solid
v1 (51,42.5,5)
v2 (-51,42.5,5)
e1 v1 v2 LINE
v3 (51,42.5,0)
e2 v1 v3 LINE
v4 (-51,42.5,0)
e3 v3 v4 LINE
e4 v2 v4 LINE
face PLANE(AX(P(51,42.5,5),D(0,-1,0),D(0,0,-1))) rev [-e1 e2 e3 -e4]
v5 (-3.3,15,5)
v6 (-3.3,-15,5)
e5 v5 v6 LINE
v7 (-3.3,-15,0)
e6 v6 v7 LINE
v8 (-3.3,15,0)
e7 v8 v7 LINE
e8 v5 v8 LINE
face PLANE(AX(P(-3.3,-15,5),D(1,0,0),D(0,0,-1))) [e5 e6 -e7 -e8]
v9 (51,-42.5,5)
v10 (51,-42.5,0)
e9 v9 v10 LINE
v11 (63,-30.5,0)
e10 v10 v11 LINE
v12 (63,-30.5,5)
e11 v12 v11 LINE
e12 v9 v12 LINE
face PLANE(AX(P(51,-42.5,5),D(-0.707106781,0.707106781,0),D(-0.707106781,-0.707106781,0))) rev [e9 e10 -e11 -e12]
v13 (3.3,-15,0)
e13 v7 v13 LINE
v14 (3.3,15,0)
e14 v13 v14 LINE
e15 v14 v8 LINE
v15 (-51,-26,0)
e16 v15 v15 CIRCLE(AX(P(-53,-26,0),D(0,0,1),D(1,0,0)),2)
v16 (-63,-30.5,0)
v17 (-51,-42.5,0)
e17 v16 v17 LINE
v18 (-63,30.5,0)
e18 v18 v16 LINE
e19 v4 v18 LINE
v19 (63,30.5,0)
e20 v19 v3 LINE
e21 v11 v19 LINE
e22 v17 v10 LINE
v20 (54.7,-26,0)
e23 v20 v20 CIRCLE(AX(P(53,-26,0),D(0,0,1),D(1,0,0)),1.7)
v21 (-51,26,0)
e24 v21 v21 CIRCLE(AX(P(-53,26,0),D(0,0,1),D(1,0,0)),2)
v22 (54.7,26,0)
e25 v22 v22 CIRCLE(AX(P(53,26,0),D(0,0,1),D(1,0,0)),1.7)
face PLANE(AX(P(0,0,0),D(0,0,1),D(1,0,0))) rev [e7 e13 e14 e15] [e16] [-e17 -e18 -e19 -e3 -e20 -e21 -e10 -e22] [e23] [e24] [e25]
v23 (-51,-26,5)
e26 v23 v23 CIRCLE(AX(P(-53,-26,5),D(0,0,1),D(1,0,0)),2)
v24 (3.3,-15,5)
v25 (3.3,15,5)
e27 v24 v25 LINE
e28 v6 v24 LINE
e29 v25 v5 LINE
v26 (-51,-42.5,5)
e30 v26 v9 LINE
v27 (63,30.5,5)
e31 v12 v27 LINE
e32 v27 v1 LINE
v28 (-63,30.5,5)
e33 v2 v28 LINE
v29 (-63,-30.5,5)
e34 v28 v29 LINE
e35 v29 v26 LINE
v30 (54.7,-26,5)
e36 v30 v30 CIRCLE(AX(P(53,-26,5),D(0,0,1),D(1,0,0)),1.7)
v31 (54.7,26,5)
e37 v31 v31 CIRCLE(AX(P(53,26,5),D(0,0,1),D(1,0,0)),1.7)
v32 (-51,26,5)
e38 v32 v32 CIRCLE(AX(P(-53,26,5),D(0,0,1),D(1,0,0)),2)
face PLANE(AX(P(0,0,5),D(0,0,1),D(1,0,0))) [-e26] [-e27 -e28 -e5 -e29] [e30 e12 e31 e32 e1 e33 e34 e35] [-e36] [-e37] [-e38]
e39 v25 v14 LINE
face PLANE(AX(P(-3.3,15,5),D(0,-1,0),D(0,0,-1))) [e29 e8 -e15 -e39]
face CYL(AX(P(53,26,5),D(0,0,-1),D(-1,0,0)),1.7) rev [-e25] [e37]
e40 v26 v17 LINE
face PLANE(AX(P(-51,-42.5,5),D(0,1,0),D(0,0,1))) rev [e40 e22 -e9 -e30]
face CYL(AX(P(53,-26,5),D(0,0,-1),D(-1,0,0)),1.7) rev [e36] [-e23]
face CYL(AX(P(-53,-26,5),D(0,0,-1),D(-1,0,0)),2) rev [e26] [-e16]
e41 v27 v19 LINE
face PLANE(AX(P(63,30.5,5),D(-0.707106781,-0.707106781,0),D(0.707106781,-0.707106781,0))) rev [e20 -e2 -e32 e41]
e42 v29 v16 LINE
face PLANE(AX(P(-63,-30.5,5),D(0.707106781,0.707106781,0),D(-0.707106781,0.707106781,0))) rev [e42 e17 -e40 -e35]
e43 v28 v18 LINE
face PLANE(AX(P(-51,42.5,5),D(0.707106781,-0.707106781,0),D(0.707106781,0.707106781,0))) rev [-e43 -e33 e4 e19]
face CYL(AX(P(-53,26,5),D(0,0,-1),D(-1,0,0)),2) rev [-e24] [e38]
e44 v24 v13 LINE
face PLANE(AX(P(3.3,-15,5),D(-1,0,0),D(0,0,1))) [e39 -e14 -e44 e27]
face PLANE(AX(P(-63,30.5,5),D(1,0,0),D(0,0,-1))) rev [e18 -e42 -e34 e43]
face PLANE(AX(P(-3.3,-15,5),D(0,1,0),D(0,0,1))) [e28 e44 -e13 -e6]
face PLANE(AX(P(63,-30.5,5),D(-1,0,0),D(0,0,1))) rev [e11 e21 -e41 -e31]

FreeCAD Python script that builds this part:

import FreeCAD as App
import Part
import Sketcher
from FreeCAD import Vector


def add_polygon(sketch, points):
    """Adds a closed chain of lines whose ends are joined by coincident constraints."""
    first, n = sketch.GeometryCount, len(points)
    for a, b in zip(points, points[1:] + points[:1]):
        sketch.addGeometry(Part.LineSegment(App.Vector(*a, 0), App.Vector(*b, 0)), False)
    for i in range(n):
        sketch.addConstraint(Sketcher.Constraint("Coincident", first + i, 2, first + (i + 1) % n, 1))

doc = App.newDocument("Part")
body = doc.addObject("PartDesign::Body", "Body")

sketch1 = body.newObject("Sketcher::SketchObject", "Sketch")
sketch1.AttachmentSupport = (doc.getObject("XY_Plane"), [""])
sketch1.MapMode = "FlatFace"
add_polygon(sketch1, [(-51, -42.5), (51, -42.5), (63, -30.5), (63, 30.5), (51, 42.5), (-51, 42.5), (-63, 30.5), (-63, -30.5)])
sketch1.addGeometry(Part.Circle(Vector(-53, -26, 0), Vector(0, 0, 1), 2), False)
sketch1.addGeometry(Part.Circle(Vector(53, -26, 0), Vector(0, 0, 1), 1.7), False)
sketch1.addGeometry(Part.Circle(Vector(-53, 26, 0), Vector(0, 0, 1), 2), False)
add_polygon(sketch1, [(3.3, -15), (-3.3, -15), (-3.3, 15), (3.3, 15)])
sketch1.addGeometry(Part.Circle(Vector(53, 26, 0), Vector(0, 0, 1), 1.7), False)
sketch1.addConstraint(Sketcher.Constraint("Horizontal", 0))
sketch1.addConstraint(Sketcher.Constraint("Vertical", 2))
sketch1.addConstraint(Sketcher.Constraint("Horizontal", 4))
sketch1.addConstraint(Sketcher.Constraint("Vertical", 6))
sketch1.addConstraint(Sketcher.Constraint("Horizontal", 11))
sketch1.addConstraint(Sketcher.Constraint("Vertical", 12))
sketch1.addConstraint(Sketcher.Constraint("Horizontal", 13))
sketch1.addConstraint(Sketcher.Constraint("Vertical", 14))
sketch1.addConstraint(Sketcher.Constraint("Equal", 8, 10))
sketch1.addConstraint(Sketcher.Constraint("Equal", 9, 15))
sketch1.addConstraint(Sketcher.Constraint("Symmetric", 9, 3, 10, 3, -1, 1))
sketch1.addConstraint(Sketcher.Constraint("Symmetric", 8, 3, 15, 3, -1, 1))
sketch1.addConstraint(Sketcher.Constraint("Symmetric", 0, 2, 4, 2, -1, 1))
sketch1.addConstraint(Sketcher.Constraint("Symmetric", 1, 2, 5, 2, -1, 1))
sketch1.addConstraint(Sketcher.Constraint("Symmetric", 11, 2, 13, 2, -1, 1))
sketch1.addConstraint(Sketcher.Constraint("Symmetric", 8, 3, 9, 3, -2))
sketch1.addConstraint(Sketcher.Constraint("Perpendicular", 1, 3))
sketch1.addConstraint(Sketcher.Constraint("Perpendicular", 5, 7))
sketch1.addConstraint(Sketcher.Constraint("Horizontal", 2, 2, 5, 2))
sketch1.addConstraint(Sketcher.Constraint("Horizontal", 1, 2, 6, 2))
sketch1.addConstraint(Sketcher.Constraint("Vertical", 0, 2, 3, 2))
sketch1.addConstraint(Sketcher.Constraint("Diameter", 8, 4.0))
sketch1.addConstraint(Sketcher.Constraint("Diameter", 9, 3.4))
sketch1.addConstraint(Sketcher.Constraint("DistanceX", 0, 1, 0, 2, 102.0))
sketch1.addConstraint(Sketcher.Constraint("DistanceY", 2, 1, 2, 2, 61.0))
sketch1.addConstraint(Sketcher.Constraint("DistanceY", 12, 1, 12, 2, 30.0))
sketch1.addConstraint(Sketcher.Constraint("DistanceX", 11, 2, 11, 1, 6.6))
sketch1.addConstraint(Sketcher.Constraint("DistanceX", 8, 3, -1, 1, 53.0))
sketch1.addConstraint(Sketcher.Constraint("DistanceY", 8, 3, -1, 1, 26.0))
sketch1.addConstraint(Sketcher.Constraint("DistanceX", -1, 1, 1, 2, 63.0))
pad1 = body.newObject("PartDesign::Pad", "Pad")
pad1.Profile = sketch1
pad1.Length = 5

doc.recompute()
